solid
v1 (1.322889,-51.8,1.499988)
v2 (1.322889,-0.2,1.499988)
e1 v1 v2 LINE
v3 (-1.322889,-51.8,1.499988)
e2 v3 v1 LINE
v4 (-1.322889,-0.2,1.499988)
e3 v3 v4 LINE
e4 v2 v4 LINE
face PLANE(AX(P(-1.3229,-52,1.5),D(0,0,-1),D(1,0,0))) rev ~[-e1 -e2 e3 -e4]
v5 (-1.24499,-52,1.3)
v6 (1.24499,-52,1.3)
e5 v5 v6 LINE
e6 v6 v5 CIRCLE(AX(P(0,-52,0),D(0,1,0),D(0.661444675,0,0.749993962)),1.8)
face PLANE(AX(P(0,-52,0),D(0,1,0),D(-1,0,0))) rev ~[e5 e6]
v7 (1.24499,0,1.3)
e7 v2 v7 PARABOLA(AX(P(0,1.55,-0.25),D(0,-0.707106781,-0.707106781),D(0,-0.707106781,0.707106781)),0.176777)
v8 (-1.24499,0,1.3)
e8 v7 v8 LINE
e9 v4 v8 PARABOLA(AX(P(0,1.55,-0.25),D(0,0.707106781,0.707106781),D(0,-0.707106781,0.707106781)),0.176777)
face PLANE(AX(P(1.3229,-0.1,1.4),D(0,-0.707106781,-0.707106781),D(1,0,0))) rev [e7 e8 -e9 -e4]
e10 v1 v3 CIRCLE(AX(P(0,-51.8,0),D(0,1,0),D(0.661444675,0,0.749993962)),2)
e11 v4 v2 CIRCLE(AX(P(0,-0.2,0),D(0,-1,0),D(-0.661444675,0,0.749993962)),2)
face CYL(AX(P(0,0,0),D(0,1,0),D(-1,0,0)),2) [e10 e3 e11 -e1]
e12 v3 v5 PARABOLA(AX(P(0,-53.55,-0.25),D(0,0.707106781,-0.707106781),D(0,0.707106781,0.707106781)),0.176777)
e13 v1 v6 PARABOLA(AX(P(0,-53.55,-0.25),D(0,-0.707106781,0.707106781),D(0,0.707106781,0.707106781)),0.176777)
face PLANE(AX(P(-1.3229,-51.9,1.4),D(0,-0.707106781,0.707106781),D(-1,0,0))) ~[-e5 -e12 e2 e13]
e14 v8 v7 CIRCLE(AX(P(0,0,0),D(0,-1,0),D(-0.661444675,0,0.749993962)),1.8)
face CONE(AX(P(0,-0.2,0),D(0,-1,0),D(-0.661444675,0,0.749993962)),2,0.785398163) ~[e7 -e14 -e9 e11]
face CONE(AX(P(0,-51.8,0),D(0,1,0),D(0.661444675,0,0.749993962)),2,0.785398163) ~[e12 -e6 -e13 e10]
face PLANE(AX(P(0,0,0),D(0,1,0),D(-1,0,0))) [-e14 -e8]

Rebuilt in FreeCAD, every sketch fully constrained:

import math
import FreeCAD as App
import Part
import Sketcher
from FreeCAD import Vector


def edges_at(feature, points):
    """Names of the edges that pass closest to the given points."""
    edges = feature.Shape.Edges
    near = lambda p: min(range(len(edges)), key=lambda i: edges[i].distToShape(Part.Vertex(*p))[0])
    return sorted({f"Edge{near(p) + 1}" for p in points})

doc = App.newDocument("Part")
body = doc.addObject("PartDesign::Body", "Body")

sketch1 = body.newObject("Sketcher::SketchObject", "Sketch")
sketch1.AttachmentSupport = (doc.getObject("XZ_Plane"), [""])
sketch1.MapMode = "FlatFace"
sketch1.addGeometry(Part.Circle(Vector(0, 0, 0), Vector(0, 0, 1), 2), False)
sketch1.addConstraint([
    Sketcher.Constraint("Coincident", 0, 3, -1, 1),
    Sketcher.Constraint("Diameter", 0, 4.0),
])
pad1 = body.newObject("PartDesign::Pad", "Pad")
pad1.Profile = sketch1
pad1.Length = 52

sketch2 = body.newObject("Sketcher::SketchObject", "Sketch001")
sketch2.AttachmentSupport = (doc.getObject("XZ_Plane"), [""])
sketch2.MapMode = "FlatFace"
sketch2.AttachmentOffset = App.Placement(Vector(0, 0, 52), App.Rotation())
sketch2.addGeometry([
    Part.LineSegment(Vector(-1.3229, 1.5, 0), Vector(1.3229, 1.5, 0)),
    Part.ArcOfCircle(Part.Circle(Vector(0, 0, 0), Vector(0, 0, 1), 2), math.radians(48.589855), math.radians(131.410145)),
], False)
sketch2.addConstraint([
    Sketcher.Constraint("Coincident", 0, 1, 1, 2),
    Sketcher.Constraint("Coincident", 1, 1, 0, 2),
    Sketcher.Constraint("Horizontal", 0),
    Sketcher.Constraint("Coincident", 1, 3, -1, 1),
    Sketcher.Constraint("Radius", 1, 2.0),
    Sketcher.Constraint("DistanceY", -1, 1, 0, 1, 1.5),
])
pocket1 = body.newObject("PartDesign::Pocket", "Pocket")
pocket1.Profile = sketch2
pocket1.Type = "ThroughAll"
doc.recompute()

chamfer = body.newObject("PartDesign::Chamfer", "Chamfer")
chamfer.Base = (pocket1, edges_at(pocket1, [
    (0, -52, -2),
    (0, -52, 1.5),
    (0, 0, -2),
    (0, 0, 1.5),
]))
chamfer.Size = 0.2

doc.recompute()
